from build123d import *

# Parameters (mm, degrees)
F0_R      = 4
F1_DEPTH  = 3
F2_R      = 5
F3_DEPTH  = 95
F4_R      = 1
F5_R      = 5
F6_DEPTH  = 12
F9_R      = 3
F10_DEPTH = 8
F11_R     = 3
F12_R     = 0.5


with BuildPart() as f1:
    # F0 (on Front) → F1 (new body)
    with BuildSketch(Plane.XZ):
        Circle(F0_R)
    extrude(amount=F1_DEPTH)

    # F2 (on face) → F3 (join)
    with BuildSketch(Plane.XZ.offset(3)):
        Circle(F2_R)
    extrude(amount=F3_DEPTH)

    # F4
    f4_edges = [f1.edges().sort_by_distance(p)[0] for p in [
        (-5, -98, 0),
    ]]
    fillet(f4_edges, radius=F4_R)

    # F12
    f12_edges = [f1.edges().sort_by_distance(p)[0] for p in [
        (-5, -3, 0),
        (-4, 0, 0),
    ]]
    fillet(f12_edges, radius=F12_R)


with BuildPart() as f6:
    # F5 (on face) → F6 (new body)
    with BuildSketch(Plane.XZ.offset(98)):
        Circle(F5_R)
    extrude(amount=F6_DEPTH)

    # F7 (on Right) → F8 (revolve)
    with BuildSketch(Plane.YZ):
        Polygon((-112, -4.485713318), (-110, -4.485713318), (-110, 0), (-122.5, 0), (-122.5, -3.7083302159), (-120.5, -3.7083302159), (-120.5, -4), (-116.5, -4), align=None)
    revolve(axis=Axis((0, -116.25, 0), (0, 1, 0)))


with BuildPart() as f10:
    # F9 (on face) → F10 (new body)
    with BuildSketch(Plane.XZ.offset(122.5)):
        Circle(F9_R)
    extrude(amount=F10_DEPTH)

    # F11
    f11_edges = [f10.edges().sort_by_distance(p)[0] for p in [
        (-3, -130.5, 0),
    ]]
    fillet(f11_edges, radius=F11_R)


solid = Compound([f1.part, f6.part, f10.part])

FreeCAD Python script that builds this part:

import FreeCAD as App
import Part
import Sketcher

V = App.Vector
Q = App.Units.Quantity


def edges_at(feature, points):
    """Names of the edges that pass closest to the given points."""
    edges = feature.Shape.Edges
    near = lambda p: min(range(len(edges)), key=lambda i: edges[i].distToShape(Part.Vertex(*p))[0])
    return sorted({f"Edge{near(p) + 1}" for p in points})

doc = App.newDocument("Part")
body = doc.addObject("PartDesign::Body", "Body")

# Sketch on XZ plane
sketch1 = body.newObject("Sketcher::SketchObject", "Sketch")
sketch1.AttachmentSupport = (doc.getObject("XZ_Plane"), [""])
sketch1.MapMode = "FlatFace"
sketch1.addGeometry(Part.Circle(V(0, 0, 0), V(0, 0, 1), 4), False)
sketch1.addConstraint(Sketcher.Constraint("Coincident", 0, 3, -1, 1))
sketch1.addConstraint(Sketcher.Constraint("Diameter", 0, Q("8 mm")))
pad1 = body.newObject("PartDesign::Pad", "Pad")
pad1.Profile = sketch1
pad1.Length = 3

# Sketch on XZ plane
sketch2 = body.newObject("Sketcher::SketchObject", "Sketch001")
sketch2.AttachmentSupport = (doc.getObject("XZ_Plane"), [""])
sketch2.MapMode = "FlatFace"
sketch2.AttachmentOffset = App.Placement(V(0, 0, 3), App.Rotation())
sketch2.addGeometry(Part.Circle(V(0, 0, 0), V(0, 0, 1), 5), False)
sketch2.addConstraint(Sketcher.Constraint("Coincident", 0, 3, -1, 1))
sketch2.addConstraint(Sketcher.Constraint("Diameter", 0, Q("10 mm")))
pad2 = body.newObject("PartDesign::Pad", "Pad001")
pad2.Profile = sketch2
pad2.Length = 95
doc.recompute()

fillet = body.newObject("PartDesign::Fillet", "Fillet")
fillet.Base = (pad2, edges_at(pad2, [(-5, -98, 0)]))
fillet.Radius = 1
doc.recompute()

fillet2 = body.newObject("PartDesign::Fillet", "Fillet001")
fillet2.Base = (fillet, edges_at(fillet, [(-5, -3, 0), (-4, 0, 0)]))
fillet2.Radius = 0.5
body2 = doc.addObject("PartDesign::Body", "Body001")

# Sketch on XZ plane
sketch3 = body2.newObject("Sketcher::SketchObject", "Sketch002")
sketch3.AttachmentSupport = (doc.getObject("XZ_Plane001"), [""])
sketch3.MapMode = "FlatFace"
sketch3.AttachmentOffset = App.Placement(V(0, 0, 98), App.Rotation())
sketch3.addGeometry(Part.Circle(V(0, 0, 0), V(0, 0, 1), 5), False)
sketch3.addConstraint(Sketcher.Constraint("Coincident", 0, 3, -1, 1))
sketch3.addConstraint(Sketcher.Constraint("Diameter", 0, Q("10 mm")))
pad3 = body2.newObject("PartDesign::Pad", "Pad002")
pad3.Profile = sketch3
pad3.Length = 12

# Sketch on YZ plane
sketch4 = body2.newObject("Sketcher::SketchObject", "Sketch003")
sketch4.AttachmentSupport = (doc.getObject("YZ_Plane001"), [""])
sketch4.MapMode = "FlatFace"
sketch4.addGeometry(Part.LineSegment(V(-112, -4.49, 0), V(-110, -4.49, 0)), False)
sketch4.addGeometry(Part.LineSegment(V(-110, -4.49, 0), V(-110, 0, 0)), False)
sketch4.addGeometry(Part.LineSegment(V(-110, 0, 0), V(-122.5, 0, 0)), False)
sketch4.addGeometry(Part.LineSegment(V(-122.5, 0, 0), V(-122.5, -3.71, 0)), False)
sketch4.addGeometry(Part.LineSegment(V(-122.5, -3.71, 0), V(-120.5, -3.71, 0)), False)
sketch4.addGeometry(Part.LineSegment(V(-120.5, -3.71, 0), V(-120.5, -4, 0)), False)
sketch4.addGeometry(Part.LineSegment(V(-120.5, -4, 0), V(-116.5, -4, 0)), False)
sketch4.addGeometry(Part.LineSegment(V(-116.5, -4, 0), V(-112, -4.49, 0)), False)
sketch4.addConstraint(Sketcher.Constraint("Coincident", 0, 2, 1, 1))
sketch4.addConstraint(Sketcher.Constraint("Coincident", 1, 2, 2, 1))
sketch4.addConstraint(Sketcher.Constraint("Coincident", 2, 2, 3, 1))
sketch4.addConstraint(Sketcher.Constraint("Coincident", 3, 2, 4, 1))
sketch4.addConstraint(Sketcher.Constraint("Coincident", 4, 2, 5, 1))
sketch4.addConstraint(Sketcher.Constraint("Coincident", 5, 2, 6, 1))
sketch4.addConstraint(Sketcher.Constraint("Coincident", 6, 2, 7, 1))
sketch4.addConstraint(Sketcher.Constraint("Coincident", 7, 2, 0, 1))
sketch4.addConstraint(Sketcher.Constraint("Horizontal", 0))
sketch4.addConstraint(Sketcher.Constraint("Vertical", 1))
sketch4.addConstraint(Sketcher.Constraint("Horizontal", 2))
sketch4.addConstraint(Sketcher.Constraint("Vertical", 3))
sketch4.addConstraint(Sketcher.Constraint("Horizontal", 4))
sketch4.addConstraint(Sketcher.Constraint("Vertical", 5))
sketch4.addConstraint(Sketcher.Constraint("Horizontal", 6))
sketch4.addConstraint(Sketcher.Constraint("PointOnObject", 1, 2, -1))
sketch4.addConstraint(Sketcher.Constraint("Equal", 0, 4))
sketch4.addConstraint(Sketcher.Constraint("DistanceX", 0, 1, 0, 2, Q("2 mm")))
sketch4.addConstraint(Sketcher.Constraint("DistanceX", 6, 1, 6, 2, Q("4 mm")))
sketch4.addConstraint(Sketcher.Constraint("DistanceX", 2, 2, 2, 1, Q("12.5 mm")))
sketch4.addConstraint(Sketcher.Constraint("DistanceX", 0, 2, -1, 1, Q("110 mm")))
sketch4.addConstraint(Sketcher.Constraint("DistanceY", 5, 2, -1, 1, Q("4 mm")))
sketch4.addConstraint(Sketcher.Constraint("DistanceY", 3, 2, 3, 1, Q("3.70833 mm")))
sketch4.addConstraint(Sketcher.Constraint("DistanceY", 1, 1, 1, 2, Q("4.485713 mm")))
revolution = body2.newObject("PartDesign::Revolution", "Revolution")
revolution.Profile = sketch4
revolution.ReferenceAxis = (sketch4, ["H_Axis"])
revolution.Angle = 360
body3 = doc.addObject("PartDesign::Body", "Body002")

# Sketch on XZ plane
sketch5 = body3.newObject("Sketcher::SketchObject", "Sketch004")
sketch5.AttachmentSupport = (doc.getObject("XZ_Plane002"), [""])
sketch5.MapMode = "FlatFace"
sketch5.AttachmentOffset = App.Placement(V(0, 0, 122.5), App.Rotation())
sketch5.addGeometry(Part.Circle(V(0, 0, 0), V(0, 0, 1), 3), False)
sketch5.addConstraint(Sketcher.Constraint("Coincident", 0, 3, -1, 1))
sketch5.addConstraint(Sketcher.Constraint("Diameter", 0, Q("6 mm")))
pad4 = body3.newObject("PartDesign::Pad", "Pad003")
pad4.Profile = sketch5
pad4.Length = 8
doc.recompute()

fillet3 = body3.newObject("PartDesign::Fillet", "Fillet002")
fillet3.Base = (pad4, edges_at(pad4, [(-3, -130.5, 0)]))
fillet3.Radius = 3

doc.recompute()
